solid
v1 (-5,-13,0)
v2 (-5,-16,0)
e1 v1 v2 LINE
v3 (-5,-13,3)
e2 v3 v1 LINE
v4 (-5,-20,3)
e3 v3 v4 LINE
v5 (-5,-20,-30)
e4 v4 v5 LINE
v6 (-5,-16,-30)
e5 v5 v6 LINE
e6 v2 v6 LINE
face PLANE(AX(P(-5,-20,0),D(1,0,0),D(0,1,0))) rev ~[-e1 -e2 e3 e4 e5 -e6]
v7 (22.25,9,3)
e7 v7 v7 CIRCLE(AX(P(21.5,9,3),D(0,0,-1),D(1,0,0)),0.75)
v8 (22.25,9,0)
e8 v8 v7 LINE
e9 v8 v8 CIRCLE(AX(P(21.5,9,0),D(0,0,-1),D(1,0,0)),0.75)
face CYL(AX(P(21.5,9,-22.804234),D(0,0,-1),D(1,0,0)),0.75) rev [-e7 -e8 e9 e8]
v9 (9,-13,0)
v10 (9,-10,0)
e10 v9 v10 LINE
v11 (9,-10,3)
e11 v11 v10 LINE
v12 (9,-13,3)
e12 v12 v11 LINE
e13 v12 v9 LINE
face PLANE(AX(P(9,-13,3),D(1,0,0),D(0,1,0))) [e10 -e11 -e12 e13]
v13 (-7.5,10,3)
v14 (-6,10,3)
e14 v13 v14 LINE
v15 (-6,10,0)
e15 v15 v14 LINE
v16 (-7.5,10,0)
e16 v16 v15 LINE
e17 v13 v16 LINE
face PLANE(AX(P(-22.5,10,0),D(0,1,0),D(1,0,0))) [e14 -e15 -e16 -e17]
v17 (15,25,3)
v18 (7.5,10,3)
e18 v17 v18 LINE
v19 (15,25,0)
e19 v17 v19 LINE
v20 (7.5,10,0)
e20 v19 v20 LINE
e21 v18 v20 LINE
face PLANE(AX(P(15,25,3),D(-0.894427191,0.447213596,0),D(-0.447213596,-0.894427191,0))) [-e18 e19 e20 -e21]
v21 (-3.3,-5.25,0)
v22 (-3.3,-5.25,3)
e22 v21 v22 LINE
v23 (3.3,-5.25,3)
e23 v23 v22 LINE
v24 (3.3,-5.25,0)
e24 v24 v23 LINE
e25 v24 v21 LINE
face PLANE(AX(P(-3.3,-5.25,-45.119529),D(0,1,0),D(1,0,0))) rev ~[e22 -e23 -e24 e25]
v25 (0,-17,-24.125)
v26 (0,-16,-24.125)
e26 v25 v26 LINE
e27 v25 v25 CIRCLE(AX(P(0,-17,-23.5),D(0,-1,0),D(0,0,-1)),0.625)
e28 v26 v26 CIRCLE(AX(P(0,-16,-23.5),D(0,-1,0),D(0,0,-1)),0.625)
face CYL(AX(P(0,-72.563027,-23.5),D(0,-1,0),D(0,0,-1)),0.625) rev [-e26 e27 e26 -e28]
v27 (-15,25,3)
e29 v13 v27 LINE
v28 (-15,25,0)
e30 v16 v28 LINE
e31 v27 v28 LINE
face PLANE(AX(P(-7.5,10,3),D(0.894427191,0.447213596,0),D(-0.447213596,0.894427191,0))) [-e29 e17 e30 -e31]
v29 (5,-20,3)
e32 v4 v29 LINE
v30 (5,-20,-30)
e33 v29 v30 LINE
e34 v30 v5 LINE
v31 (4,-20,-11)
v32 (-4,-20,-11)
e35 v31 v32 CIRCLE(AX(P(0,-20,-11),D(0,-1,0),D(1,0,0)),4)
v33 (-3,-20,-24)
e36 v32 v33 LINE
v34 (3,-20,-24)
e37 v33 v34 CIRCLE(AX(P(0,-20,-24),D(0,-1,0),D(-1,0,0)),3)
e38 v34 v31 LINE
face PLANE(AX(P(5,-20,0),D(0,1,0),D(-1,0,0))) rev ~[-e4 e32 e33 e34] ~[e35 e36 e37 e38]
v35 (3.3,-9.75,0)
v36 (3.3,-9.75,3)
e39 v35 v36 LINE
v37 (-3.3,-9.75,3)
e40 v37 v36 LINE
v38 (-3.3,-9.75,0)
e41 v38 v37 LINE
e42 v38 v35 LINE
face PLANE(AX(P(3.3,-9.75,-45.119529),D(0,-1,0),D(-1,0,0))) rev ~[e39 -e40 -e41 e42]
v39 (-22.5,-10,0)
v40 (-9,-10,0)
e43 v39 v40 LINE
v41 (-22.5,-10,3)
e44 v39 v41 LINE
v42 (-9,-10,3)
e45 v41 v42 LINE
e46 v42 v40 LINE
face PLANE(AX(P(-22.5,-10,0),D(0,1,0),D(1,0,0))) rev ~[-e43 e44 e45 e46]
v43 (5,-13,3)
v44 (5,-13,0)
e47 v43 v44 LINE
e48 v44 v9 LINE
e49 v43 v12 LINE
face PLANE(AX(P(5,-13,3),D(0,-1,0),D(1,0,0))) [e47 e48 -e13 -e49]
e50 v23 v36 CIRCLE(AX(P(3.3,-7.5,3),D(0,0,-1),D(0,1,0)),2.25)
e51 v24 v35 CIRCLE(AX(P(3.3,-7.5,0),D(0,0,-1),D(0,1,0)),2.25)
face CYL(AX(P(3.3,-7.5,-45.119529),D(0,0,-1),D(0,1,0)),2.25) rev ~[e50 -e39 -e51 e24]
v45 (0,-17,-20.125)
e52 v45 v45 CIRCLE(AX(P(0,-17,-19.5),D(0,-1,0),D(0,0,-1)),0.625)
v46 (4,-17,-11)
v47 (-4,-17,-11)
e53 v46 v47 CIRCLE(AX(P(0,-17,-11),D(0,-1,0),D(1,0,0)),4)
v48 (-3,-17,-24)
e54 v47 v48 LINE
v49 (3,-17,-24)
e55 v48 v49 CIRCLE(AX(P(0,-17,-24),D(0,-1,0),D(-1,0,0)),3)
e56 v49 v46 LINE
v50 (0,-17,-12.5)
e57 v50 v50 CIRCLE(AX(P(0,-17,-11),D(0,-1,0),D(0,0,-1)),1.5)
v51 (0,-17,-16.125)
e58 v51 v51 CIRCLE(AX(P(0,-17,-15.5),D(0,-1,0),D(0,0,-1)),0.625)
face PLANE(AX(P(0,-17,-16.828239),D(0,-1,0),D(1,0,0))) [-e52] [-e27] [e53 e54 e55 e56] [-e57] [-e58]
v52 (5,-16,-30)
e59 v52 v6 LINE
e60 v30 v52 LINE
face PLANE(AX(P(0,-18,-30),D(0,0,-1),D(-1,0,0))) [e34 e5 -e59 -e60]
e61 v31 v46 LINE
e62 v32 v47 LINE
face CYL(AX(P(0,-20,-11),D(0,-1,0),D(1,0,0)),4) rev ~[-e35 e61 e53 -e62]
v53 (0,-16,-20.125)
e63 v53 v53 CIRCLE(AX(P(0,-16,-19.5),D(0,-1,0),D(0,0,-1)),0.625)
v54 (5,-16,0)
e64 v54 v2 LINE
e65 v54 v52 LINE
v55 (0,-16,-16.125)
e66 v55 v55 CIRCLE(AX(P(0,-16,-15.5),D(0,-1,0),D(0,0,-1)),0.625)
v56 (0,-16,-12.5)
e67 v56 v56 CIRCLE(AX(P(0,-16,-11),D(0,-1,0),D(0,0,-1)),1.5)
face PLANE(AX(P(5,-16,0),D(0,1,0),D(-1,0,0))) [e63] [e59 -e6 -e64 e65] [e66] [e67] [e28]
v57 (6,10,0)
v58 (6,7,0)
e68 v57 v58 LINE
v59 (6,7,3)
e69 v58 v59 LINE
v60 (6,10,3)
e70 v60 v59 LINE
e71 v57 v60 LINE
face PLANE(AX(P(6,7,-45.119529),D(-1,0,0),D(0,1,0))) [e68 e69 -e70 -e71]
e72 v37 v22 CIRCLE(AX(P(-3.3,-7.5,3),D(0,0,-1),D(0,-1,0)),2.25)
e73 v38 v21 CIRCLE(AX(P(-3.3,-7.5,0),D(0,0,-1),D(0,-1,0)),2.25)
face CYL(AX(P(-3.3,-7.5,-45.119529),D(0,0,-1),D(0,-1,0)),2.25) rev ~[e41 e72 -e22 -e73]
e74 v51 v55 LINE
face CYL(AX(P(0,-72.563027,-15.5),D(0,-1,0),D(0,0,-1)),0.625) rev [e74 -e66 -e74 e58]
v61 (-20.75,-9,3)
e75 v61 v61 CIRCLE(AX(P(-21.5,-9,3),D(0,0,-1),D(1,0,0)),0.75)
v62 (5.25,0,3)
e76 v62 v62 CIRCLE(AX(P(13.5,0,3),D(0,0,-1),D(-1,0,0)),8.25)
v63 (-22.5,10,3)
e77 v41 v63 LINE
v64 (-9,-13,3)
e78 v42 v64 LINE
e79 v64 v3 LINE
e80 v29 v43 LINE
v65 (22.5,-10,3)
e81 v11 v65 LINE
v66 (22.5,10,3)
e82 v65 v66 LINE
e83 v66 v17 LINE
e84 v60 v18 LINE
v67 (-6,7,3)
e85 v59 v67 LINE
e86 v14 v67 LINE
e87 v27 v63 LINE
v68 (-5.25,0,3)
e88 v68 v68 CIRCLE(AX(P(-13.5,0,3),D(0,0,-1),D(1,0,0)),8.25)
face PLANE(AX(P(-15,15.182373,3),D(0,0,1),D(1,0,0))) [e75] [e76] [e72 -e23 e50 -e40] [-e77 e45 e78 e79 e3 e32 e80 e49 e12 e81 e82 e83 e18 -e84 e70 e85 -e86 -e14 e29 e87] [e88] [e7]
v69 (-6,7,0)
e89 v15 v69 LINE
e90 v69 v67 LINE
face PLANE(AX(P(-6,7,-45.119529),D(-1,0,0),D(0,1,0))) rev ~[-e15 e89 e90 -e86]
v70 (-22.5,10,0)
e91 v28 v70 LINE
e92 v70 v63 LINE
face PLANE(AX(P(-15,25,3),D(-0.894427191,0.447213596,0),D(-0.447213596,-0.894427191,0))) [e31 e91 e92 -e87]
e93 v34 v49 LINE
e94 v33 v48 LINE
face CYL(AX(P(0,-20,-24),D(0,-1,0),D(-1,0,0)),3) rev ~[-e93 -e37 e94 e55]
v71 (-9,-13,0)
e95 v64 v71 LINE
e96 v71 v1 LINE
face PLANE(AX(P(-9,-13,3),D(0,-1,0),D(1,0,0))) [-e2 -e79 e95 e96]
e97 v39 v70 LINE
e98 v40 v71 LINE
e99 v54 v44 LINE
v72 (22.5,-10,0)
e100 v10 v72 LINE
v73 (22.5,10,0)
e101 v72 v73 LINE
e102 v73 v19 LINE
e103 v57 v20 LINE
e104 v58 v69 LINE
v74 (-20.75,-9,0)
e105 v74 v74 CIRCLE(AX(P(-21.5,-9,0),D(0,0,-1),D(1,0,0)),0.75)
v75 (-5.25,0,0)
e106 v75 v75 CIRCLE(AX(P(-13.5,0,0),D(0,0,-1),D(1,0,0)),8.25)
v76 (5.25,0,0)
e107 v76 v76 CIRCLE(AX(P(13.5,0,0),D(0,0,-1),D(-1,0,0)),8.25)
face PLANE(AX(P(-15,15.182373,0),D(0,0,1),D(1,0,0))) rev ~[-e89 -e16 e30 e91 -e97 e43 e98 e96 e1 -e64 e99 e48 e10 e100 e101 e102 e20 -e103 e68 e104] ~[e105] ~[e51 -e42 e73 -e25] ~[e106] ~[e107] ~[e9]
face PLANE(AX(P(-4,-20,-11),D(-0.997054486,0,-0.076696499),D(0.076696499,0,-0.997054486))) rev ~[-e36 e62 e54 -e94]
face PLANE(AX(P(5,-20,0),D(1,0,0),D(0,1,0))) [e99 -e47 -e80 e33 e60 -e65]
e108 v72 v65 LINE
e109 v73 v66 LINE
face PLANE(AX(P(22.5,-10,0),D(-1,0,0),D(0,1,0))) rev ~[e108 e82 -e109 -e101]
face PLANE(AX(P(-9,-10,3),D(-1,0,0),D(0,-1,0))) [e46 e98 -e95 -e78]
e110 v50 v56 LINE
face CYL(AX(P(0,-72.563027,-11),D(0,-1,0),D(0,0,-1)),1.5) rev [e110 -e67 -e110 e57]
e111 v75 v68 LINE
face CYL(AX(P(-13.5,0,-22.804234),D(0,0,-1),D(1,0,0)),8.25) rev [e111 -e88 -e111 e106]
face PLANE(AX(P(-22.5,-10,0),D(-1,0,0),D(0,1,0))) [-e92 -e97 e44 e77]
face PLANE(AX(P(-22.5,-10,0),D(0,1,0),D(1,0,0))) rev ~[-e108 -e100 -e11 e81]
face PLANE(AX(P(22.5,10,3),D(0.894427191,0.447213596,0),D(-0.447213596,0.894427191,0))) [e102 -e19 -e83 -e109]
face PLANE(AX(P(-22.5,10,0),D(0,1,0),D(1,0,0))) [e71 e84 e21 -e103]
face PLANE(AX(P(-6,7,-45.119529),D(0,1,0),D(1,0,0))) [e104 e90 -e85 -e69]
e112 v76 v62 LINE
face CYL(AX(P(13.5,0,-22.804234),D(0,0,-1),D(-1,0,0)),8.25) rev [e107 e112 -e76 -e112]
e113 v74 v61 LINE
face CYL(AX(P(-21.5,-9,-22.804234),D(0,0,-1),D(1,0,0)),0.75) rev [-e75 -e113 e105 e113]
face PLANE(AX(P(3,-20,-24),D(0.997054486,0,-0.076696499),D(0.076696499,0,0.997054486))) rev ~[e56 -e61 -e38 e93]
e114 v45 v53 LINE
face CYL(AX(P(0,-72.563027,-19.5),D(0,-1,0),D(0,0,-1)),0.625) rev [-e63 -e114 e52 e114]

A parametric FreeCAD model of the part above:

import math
import FreeCAD as App
import Part
import Sketcher
Q = App.Units.Quantity


def add_polygon(sketch, points):
    """Adds a closed chain of lines whose ends are joined by coincident constraints."""
    first, n = sketch.GeometryCount, len(points)
    for a, b in zip(points, points[1:] + points[:1]):
        sketch.addGeometry(Part.LineSegment(App.Vector(*a, 0), App.Vector(*b, 0)), False)
    for i in range(n):
        sketch.addConstraint(Sketcher.Constraint("Coincident", first + i, 2, first + (i + 1) % n, 1))

doc = App.newDocument("Part")
body = doc.addObject("PartDesign::Body", "Body")

# Sketch on XY plane
sketch1 = body.newObject("Sketcher::SketchObject", "Sketch")
sketch1.AttachmentSupport = (doc.getObject("XY_Plane"), [""])
sketch1.MapMode = "FlatFace"
add_polygon(sketch1, [(-22, 10), (-22, -10), (22, -10), (22, 10)])  # lines 0-3
sketch1.addConstraint(Sketcher.Constraint("Vertical", 0))
sketch1.addConstraint(Sketcher.Constraint("Horizontal", 1))
sketch1.addConstraint(Sketcher.Constraint("Vertical", 2))
sketch1.addConstraint(Sketcher.Constraint("Horizontal", 3))
sketch1.addConstraint(Sketcher.Constraint("Symmetric", 0, 2, 2, 2, -1, 1))
sketch1.addConstraint(Sketcher.Constraint("DistanceX", 1, 1, 1, 2, Q("45 mm")))
sketch1.addConstraint(Sketcher.Constraint("DistanceY", 0, 2, 0, 1, Q("20 mm")))
pad1 = body.newObject("PartDesign::Pad", "Pad")
pad1.Profile = sketch1
pad1.Length = 3

# Sketch on XY plane
sketch2 = body.newObject("Sketcher::SketchObject", "Sketch001")
sketch2.AttachmentSupport = (doc.getObject("XY_Plane"), [""])
sketch2.MapMode = "FlatFace"
sketch2.AttachmentOffset = App.Placement(App.Vector(0, 0, 3), App.Rotation())
sketch2.addGeometry(Part.Circle(App.Vector(-13.5, 0, 0), App.Vector(0, 0, 1), 8.2), False)
sketch2.addGeometry(Part.Circle(App.Vector(13.5, 0, 0), App.Vector(0, 0, 1), 8.2), False)
sketch2.addGeometry(Part.Circle(App.Vector(-21.5, -9, 0), App.Vector(0, 0, 1), 0.8), False)
sketch2.addGeometry(Part.Circle(App.Vector(21.5, 9, 0), App.Vector(0, 0, 1), 0.8), False)
sketch2.addConstraint(Sketcher.Constraint("Equal", 0, 1))
sketch2.addConstraint(Sketcher.Constraint("Equal", 2, 3))
sketch2.addConstraint(Sketcher.Constraint("Symmetric", 0, 3, 1, 3, -1, 1))
sketch2.addConstraint(Sketcher.Constraint("Symmetric", 2, 3, 3, 3, -1, 1))
sketch2.addConstraint(Sketcher.Constraint("PointOnObject", 0, 3, -1))
sketch2.addConstraint(Sketcher.Constraint("Diameter", 0, Q("16.5 mm")))
sketch2.addConstraint(Sketcher.Constraint("Diameter", 2, Q("1.5 mm")))
sketch2.addConstraint(Sketcher.Constraint("DistanceY", 2, 3, -1, 1, Q("9 mm")))
sketch2.addConstraint(Sketcher.Constraint("DistanceX", 0, 3, 1, 3, Q("27 mm")))
sketch2.addConstraint(Sketcher.Constraint("DistanceX", 2, 3, 0, 3, Q("8 mm")))
pocket1 = body.newObject("PartDesign::Pocket", "Pocket")
pocket1.Profile = sketch2
pocket1.Type = "ThroughAll"
pocket1.Midplane = True

# Sketch on XY plane
sketch3 = body.newObject("Sketcher::SketchObject", "Sketch002")
sketch3.AttachmentSupport = (doc.getObject("XY_Plane"), [""])
sketch3.MapMode = "FlatFace"
sketch3.AttachmentOffset = App.Placement(App.Vector(0, 0, 3), App.Rotation())
add_polygon(sketch3, [(-15, 25), (-22, 10), (-8, 10)])  # lines 0-2
add_polygon(sketch3, [(15, 25), (8, 10), (22, 10)])  # lines 3-5
sketch3.addConstraint(Sketcher.Constraint("Horizontal", 1))
sketch3.addConstraint(Sketcher.Constraint("Horizontal", 4))
sketch3.addConstraint(Sketcher.Constraint("Symmetric", 1, 2, 3, 2, -2))
sketch3.addConstraint(Sketcher.Constraint("Symmetric", 2, 2, 5, 2, -2))
sketch3.addConstraint(Sketcher.Constraint("Parallel", 0, 3))
sketch3.addConstraint(Sketcher.Constraint("Parallel", 2, 5))
sketch3.addConstraint(Sketcher.Constraint("DistanceX", 1, 1, 1, 2, Q("15 mm")))
sketch3.addConstraint(Sketcher.Constraint("DistanceY", -1, 1, 0, 2, Q("10 mm")))
sketch3.addConstraint(Sketcher.Constraint("DistanceX", 2, 2, -1, 1, Q("15 mm")))
sketch3.addConstraint(Sketcher.Constraint("DistanceY", -1, 1, 2, 2, Q("25 mm")))
pad2 = body.newObject("PartDesign::Pad", "Pad001")
pad2.Profile = sketch3
pad2.Length = 3
pad2.Reversed = True

# Sketch on XY plane
sketch4 = body.newObject("Sketcher::SketchObject", "Sketch003")
sketch4.AttachmentSupport = (doc.getObject("XY_Plane"), [""])
sketch4.MapMode = "FlatFace"
sketch4.AttachmentOffset = App.Placement(App.Vector(0, 0, 3), App.Rotation())
add_polygon(sketch4, [(-5, -13), (-5, -20), (5, -20), (5, -13), (9, -13), (9, -10), (-9, -10), (-9, -13)])  # lines 0-7
sketch4.addConstraint(Sketcher.Constraint("Vertical", 0))
sketch4.addConstraint(Sketcher.Constraint("Horizontal", 1))
sketch4.addConstraint(Sketcher.Constraint("Vertical", 2))
sketch4.addConstraint(Sketcher.Constraint("Horizontal", 3))
sketch4.addConstraint(Sketcher.Constraint("Vertical", 4))
sketch4.addConstraint(Sketcher.Constraint("Horizontal", 5))
sketch4.addConstraint(Sketcher.Constraint("Vertical", 6))
sketch4.addConstraint(Sketcher.Constraint("Horizontal", 7))
sketch4.addConstraint(Sketcher.Constraint("Symmetric", 3, 2, 6, 2, -2))
sketch4.addConstraint(Sketcher.Constraint("Equal", 3, 7))
sketch4.addConstraint(Sketcher.Constraint("DistanceX", 1, 1, 1, 2, Q("10 mm")))
sketch4.addConstraint(Sketcher.Constraint("DistanceX", 3, 1, 3, 2, Q("4 mm")))
sketch4.addConstraint(Sketcher.Constraint("DistanceY", 0, 2, 0, 1, Q("7 mm")))
sketch4.addConstraint(Sketcher.Constraint("DistanceY", 4, 1, 4, 2, Q("3 mm")))
sketch4.addConstraint(Sketcher.Constraint("DistanceY", 0, 2, -1, 1, Q("20 mm")))
pad3 = body.newObject("PartDesign::Pad", "Pad002")
pad3.Profile = sketch4
pad3.Length = 3
pad3.Reversed = True

# Sketch on XY plane
sketch5 = body.newObject("Sketcher::SketchObject", "Sketch004")
sketch5.AttachmentSupport = (doc.getObject("XY_Plane"), [""])
sketch5.MapMode = "FlatFace"
add_polygon(sketch5, [(5, -16), (5, -20), (-5, -20), (-5, -16)])  # lines 0-3
sketch5.addConstraint(Sketcher.Constraint("Vertical", 0))
sketch5.addConstraint(Sketcher.Constraint("Horizontal", 1))
sketch5.addConstraint(Sketcher.Constraint("Vertical", 2))
sketch5.addConstraint(Sketcher.Constraint("Horizontal", 3))
sketch5.addConstraint(Sketcher.Constraint("DistanceX", 1, 2, 1, 1, Q("10 mm")))
sketch5.addConstraint(Sketcher.Constraint("DistanceY", 0, 2, 0, 1, Q("4 mm")))
sketch5.addConstraint(Sketcher.Constraint("DistanceX", -1, 1, 0, 2, Q("5 mm")))
sketch5.addConstraint(Sketcher.Constraint("DistanceY", 0, 2, -1, 1, Q("20 mm")))
pad4 = body.newObject("PartDesign::Pad", "Pad003")
pad4.Profile = sketch5
pad4.Length = 30
pad4.Reversed = True

# Sketch on XZ plane
sketch6 = body.newObject("Sketcher::SketchObject", "Sketch005")
sketch6.AttachmentSupport = (doc.getObject("XZ_Plane"), [""])
sketch6.MapMode = "FlatFace"
sketch6.AttachmentOffset = App.Placement(App.Vector(0, 0, 20), App.Rotation())
sketch6.addGeometry(Part.LineSegment(App.Vector(-4, -11, 0), App.Vector(-3, -24, 0)), False)
sketch6.addGeometry(Part.ArcOfCircle(Part.Circle(App.Vector(0, -24, 0), App.Vector(0, 0, 1), 3), math.radians(180), math.radians(360)), False)
sketch6.addGeometry(Part.LineSegment(App.Vector(3, -24, 0), App.Vector(4, -11, 0)), False)
sketch6.addGeometry(Part.ArcOfCircle(Part.Circle(App.Vector(0, -11, 0), App.Vector(0, 0, 1), 4), math.radians(0), math.radians(180)), False)
sketch6.addConstraint(Sketcher.Constraint("Coincident", 0, 2, 1, 1))
sketch6.addConstraint(Sketcher.Constraint("Coincident", 1, 2, 2, 1))
sketch6.addConstraint(Sketcher.Constraint("Coincident", 2, 2, 3, 1))
sketch6.addConstraint(Sketcher.Constraint("Coincident", 3, 2, 0, 1))
sketch6.addConstraint(Sketcher.Constraint("Symmetric", 0, 2, 1, 2, -2))
sketch6.addConstraint(Sketcher.Constraint("Symmetric", 2, 2, 3, 2, -2))
sketch6.addConstraint(Sketcher.Constraint("Horizontal", 1, 3, 0, 2))
sketch6.addConstraint(Sketcher.Constraint("Horizontal", 3, 3, 2, 2))
sketch6.addConstraint(Sketcher.Constraint("Radius", 1, Q("3 mm")))
sketch6.addConstraint(Sketcher.Constraint("Radius", 3, Q("4 mm")))
sketch6.addConstraint(Sketcher.Constraint("DistanceY", 1, 3, -1, 1, Q("24 mm")))
sketch6.addConstraint(Sketcher.Constraint("DistanceY", 3, 3, -1, 1, Q("11 mm")))
pocket2 = body.newObject("PartDesign::Pocket", "Pocket001")
pocket2.Profile = sketch6
pocket2.Length = 3

# Sketch on XZ plane
sketch7 = body.newObject("Sketcher::SketchObject", "Sketch006")
sketch7.AttachmentSupport = (doc.getObject("XZ_Plane"), [""])
sketch7.MapMode = "FlatFace"
sketch7.AttachmentOffset = App.Placement(App.Vector(0, 0, 16), App.Rotation())
sketch7.addGeometry(Part.Circle(App.Vector(0, -15.5, 0), App.Vector(0, 0, 1), 0.6), False)
sketch7.addGeometry(Part.Circle(App.Vector(0, -19.5, 0), App.Vector(0, 0, 1), 0.6), False)
sketch7.addGeometry(Part.Circle(App.Vector(0, -11, 0), App.Vector(0, 0, 1), 1.5), False)
sketch7.addGeometry(Part.Circle(App.Vector(0, -23.5, 0), App.Vector(0, 0, 1), 0.6), False)
sketch7.addConstraint(Sketcher.Constraint("Equal", 0, 1))
sketch7.addConstraint(Sketcher.Constraint("Equal", 1, 3))
sketch7.addConstraint(Sketcher.Constraint("PointOnObject", 0, 3, -2))
sketch7.addConstraint(Sketcher.Constraint("PointOnObject", 1, 3, -2))
sketch7.addConstraint(Sketcher.Constraint("PointOnObject", 2, 3, -2))
sketch7.addConstraint(Sketcher.Constraint("PointOnObject", 3, 3, -2))
sketch7.addConstraint(Sketcher.Constraint("Diameter", 2, Q("3 mm")))
sketch7.addConstraint(Sketcher.Constraint("Diameter", 0, Q("1.25 mm")))
sketch7.addConstraint(Sketcher.Constraint("DistanceY", 2, 3, -1, 1, Q("11 mm")))
sketch7.addConstraint(Sketcher.Constraint("DistanceY", 1, 3, 0, 3, Q("4 mm")))
sketch7.addConstraint(Sketcher.Constraint("DistanceY", 3, 3, 1, 3, Q("4 mm")))
sketch7.addConstraint(Sketcher.Constraint("DistanceY", 0, 3, -1, 1, Q("15.5 mm")))
pocket3 = body.newObject("PartDesign::Pocket", "Pocket002")
pocket3.Profile = sketch7
pocket3.Type = "ThroughAll"
pocket3.Midplane = True

# Sketch on XY plane
sketch8 = body.newObject("Sketcher::SketchObject", "Sketch007")
sketch8.AttachmentSupport = (doc.getObject("XY_Plane"), [""])
sketch8.MapMode = "FlatFace"
sketch8.AttachmentOffset = App.Placement(App.Vector(0, 0, 3), App.Rotation())
sketch8.addGeometry(Part.LineSegment(App.Vector(3.3, -5.2, 0), App.Vector(-3.3, -5.2, 0)), False)  # 0
sketch8.addGeometry(Part.ArcOfCircle(Part.Circle(App.Vector(-3.3, -7.5, 0), App.Vector(0, 0, 1), 2.2), math.radians(90), math.radians(270)), False)  # 1
sketch8.addGeometry(Part.LineSegment(App.Vector(-3.3, -9.8, 0), App.Vector(3.3, -9.8, 0)), False)  # 2
sketch8.addGeometry(Part.ArcOfCircle(Part.Circle(App.Vector(3.3, -7.5, 0), App.Vector(0, 0, 1), 2.2), math.radians(-90), math.radians(90)), False)  # 3
add_polygon(sketch8, [(-6, 10), (-6, 7), (6, 7), (6, 10)])  # lines 4-7
sketch8.addConstraint(Sketcher.Constraint("Tangent", 0, 2, 1, 1))
sketch8.addConstraint(Sketcher.Constraint("Tangent", 1, 2, 2, 1))
sketch8.addConstraint(Sketcher.Constraint("Tangent", 2, 2, 3, 1))
sketch8.addConstraint(Sketcher.Constraint("Tangent", 3, 2, 0, 1))
sketch8.addConstraint(Sketcher.Constraint("Horizontal", 0))
sketch8.addConstraint(Sketcher.Constraint("Horizontal", 2))
sketch8.addConstraint(Sketcher.Constraint("Vertical", 4))
sketch8.addConstraint(Sketcher.Constraint("Horizontal", 5))
sketch8.addConstraint(Sketcher.Constraint("Vertical", 6))
sketch8.addConstraint(Sketcher.Constraint("Horizontal", 7))
sketch8.addConstraint(Sketcher.Constraint("DistanceX", 5, 1, 5, 2, Q("12 mm")))
sketch8.addConstraint(Sketcher.Constraint("DistanceY", 4, 2, 4, 1, Q("3 mm")))
sketch8.addConstraint(Sketcher.Constraint("Radius", 1, Q("2.25 mm")))
sketch8.addConstraint(Sketcher.Constraint("DistanceX", 0, 2, 0, 1, Q("6.6 mm")))
sketch8.addConstraint(Sketcher.Constraint("DistanceX", 4, 2, -1, 1, Q("6 mm")))
sketch8.addConstraint(Sketcher.Constraint("DistanceY", -1, 1, 4, 2, Q("7 mm")))
sketch8.addConstraint(Sketcher.Constraint("DistanceX", 1, 3, -1, 1, Q("3.3 mm")))
sketch8.addConstraint(Sketcher.Constraint("DistanceY", 1, 3, -1, 1, Q("7.5 mm")))
pocket4 = body.newObject("PartDesign::Pocket", "Pocket003")
pocket4.Profile = sketch8
pocket4.Type = "ThroughAll"
pocket4.Midplane = True

doc.recompute()
